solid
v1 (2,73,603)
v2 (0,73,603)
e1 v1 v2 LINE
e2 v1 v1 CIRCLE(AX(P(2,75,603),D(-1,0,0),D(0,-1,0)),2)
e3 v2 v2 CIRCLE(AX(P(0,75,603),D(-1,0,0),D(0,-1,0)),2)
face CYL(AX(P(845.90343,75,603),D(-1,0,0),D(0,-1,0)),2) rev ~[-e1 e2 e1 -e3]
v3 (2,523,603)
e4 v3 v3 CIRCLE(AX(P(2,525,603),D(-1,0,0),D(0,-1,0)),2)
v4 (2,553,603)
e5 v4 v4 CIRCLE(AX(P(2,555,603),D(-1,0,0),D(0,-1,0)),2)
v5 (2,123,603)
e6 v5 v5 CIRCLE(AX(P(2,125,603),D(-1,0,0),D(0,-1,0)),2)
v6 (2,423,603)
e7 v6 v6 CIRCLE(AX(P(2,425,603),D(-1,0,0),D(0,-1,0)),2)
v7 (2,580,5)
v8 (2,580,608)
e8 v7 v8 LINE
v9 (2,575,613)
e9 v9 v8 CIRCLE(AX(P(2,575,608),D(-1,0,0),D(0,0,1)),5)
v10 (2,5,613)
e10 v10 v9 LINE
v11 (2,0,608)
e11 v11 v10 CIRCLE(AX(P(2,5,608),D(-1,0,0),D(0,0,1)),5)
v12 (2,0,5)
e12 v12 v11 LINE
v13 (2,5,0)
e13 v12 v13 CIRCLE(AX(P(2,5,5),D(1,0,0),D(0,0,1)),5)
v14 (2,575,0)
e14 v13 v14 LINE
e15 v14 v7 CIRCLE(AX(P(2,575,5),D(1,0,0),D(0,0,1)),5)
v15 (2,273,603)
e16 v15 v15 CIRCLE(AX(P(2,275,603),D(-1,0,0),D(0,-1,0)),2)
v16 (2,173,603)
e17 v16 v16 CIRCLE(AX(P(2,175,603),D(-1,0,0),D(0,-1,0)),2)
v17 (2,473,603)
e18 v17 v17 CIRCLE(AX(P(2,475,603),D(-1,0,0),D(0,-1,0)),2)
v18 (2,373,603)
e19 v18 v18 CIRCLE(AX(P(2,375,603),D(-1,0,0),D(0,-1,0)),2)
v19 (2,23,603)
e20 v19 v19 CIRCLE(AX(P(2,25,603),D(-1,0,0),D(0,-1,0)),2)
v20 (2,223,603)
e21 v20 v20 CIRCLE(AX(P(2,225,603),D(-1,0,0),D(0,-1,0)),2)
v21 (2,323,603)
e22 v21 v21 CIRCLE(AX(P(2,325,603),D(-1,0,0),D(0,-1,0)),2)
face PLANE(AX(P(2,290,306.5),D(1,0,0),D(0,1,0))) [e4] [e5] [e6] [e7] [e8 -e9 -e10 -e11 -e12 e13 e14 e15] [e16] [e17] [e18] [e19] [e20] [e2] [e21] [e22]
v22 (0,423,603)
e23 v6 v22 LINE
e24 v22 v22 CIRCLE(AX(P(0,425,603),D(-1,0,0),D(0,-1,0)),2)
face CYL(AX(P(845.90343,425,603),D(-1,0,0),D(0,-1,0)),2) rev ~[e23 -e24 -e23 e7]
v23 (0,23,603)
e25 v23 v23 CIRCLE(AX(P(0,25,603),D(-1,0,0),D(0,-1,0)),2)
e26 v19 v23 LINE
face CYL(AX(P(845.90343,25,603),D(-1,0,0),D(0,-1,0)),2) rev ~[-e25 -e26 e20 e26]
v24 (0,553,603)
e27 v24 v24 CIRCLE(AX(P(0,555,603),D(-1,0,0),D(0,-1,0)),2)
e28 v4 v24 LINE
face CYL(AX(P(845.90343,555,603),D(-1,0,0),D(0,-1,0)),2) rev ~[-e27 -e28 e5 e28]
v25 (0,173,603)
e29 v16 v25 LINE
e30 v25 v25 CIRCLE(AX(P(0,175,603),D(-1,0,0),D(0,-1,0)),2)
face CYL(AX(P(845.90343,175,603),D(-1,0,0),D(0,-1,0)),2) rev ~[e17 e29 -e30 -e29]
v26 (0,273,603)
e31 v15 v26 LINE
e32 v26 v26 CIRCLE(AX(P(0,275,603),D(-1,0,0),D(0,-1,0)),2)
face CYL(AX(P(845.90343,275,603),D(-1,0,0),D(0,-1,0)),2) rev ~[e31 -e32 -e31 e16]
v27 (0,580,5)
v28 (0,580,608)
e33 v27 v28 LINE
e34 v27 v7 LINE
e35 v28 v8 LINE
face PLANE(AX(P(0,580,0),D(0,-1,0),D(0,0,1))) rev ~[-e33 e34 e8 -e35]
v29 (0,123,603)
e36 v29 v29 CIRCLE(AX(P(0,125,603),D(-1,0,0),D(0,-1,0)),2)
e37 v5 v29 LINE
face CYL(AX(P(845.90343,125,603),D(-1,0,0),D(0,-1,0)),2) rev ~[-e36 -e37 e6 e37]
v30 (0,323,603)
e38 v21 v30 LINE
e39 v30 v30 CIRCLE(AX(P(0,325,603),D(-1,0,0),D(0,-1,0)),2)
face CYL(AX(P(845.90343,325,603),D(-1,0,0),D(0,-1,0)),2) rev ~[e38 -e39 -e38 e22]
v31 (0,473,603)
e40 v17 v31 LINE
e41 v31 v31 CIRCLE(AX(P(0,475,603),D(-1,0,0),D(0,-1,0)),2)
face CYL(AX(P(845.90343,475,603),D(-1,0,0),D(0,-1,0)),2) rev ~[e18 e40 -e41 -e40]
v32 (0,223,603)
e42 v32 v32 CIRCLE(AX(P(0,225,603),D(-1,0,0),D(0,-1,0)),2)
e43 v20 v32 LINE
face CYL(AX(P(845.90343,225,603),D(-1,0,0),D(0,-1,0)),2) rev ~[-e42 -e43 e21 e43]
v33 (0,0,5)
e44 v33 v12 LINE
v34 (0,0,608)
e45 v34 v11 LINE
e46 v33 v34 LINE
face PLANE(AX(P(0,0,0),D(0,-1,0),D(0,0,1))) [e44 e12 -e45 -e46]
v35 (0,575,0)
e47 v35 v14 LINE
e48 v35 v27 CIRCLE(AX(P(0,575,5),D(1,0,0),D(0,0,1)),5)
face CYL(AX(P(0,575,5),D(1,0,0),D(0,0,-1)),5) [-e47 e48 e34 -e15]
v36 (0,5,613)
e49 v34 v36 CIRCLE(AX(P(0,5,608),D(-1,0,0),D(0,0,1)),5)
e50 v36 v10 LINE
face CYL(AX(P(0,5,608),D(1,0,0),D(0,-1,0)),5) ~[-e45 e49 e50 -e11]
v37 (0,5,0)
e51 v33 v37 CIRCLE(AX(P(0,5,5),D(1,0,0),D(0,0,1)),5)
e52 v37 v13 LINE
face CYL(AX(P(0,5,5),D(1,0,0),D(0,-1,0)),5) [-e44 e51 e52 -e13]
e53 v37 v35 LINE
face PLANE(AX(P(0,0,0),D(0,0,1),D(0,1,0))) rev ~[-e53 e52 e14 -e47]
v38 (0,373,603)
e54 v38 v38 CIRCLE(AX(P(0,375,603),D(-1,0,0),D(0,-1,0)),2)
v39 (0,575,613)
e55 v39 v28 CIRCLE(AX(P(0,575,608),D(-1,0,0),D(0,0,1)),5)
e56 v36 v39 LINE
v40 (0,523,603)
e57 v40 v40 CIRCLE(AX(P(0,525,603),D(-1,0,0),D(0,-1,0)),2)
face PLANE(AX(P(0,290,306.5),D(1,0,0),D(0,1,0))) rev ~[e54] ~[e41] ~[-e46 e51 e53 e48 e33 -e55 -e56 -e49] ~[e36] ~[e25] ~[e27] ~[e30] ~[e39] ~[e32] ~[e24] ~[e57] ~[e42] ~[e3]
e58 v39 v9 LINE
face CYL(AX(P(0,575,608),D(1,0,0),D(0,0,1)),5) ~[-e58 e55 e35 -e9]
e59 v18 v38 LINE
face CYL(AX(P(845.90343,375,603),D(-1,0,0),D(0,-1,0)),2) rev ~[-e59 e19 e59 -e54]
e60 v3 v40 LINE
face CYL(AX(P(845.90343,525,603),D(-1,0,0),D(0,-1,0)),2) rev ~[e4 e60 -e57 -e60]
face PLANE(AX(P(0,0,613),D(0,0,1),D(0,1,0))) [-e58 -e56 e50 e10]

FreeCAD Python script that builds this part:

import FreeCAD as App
import Part
import Sketcher


def edges_at(feature, points):
    """Names of the edges that pass closest to the given points."""
    edges = feature.Shape.Edges
    near = lambda p: min(range(len(edges)), key=lambda i: edges[i].distToShape(Part.Vertex(*p))[0])
    return sorted({f"Edge{near(p) + 1}" for p in points})


def add_polygon(sketch, points):
    """Adds a closed chain of lines whose ends are joined by coincident constraints."""
    first, n = sketch.GeometryCount, len(points)
    for a, b in zip(points, points[1:] + points[:1]):
        sketch.addGeometry(Part.LineSegment(App.Vector(*a, 0), App.Vector(*b, 0)), False)
    for i in range(n):
        sketch.addConstraint(Sketcher.Constraint("Coincident", first + i, 2, first + (i + 1) % n, 1))

doc = App.newDocument("Part")
body = doc.addObject("PartDesign::Body", "Body")

# Sketch on YZ plane
sketch1 = body.newObject("Sketcher::SketchObject", "Sketch")
sketch1.AttachmentSupport = (doc.getObject("YZ_Plane"), [""])
sketch1.MapMode = "FlatFace"
add_polygon(sketch1, [(0, 613), (0, 0), (580, 0), (580, 613)])  # lines 0-3
sketch1.addConstraint([
    Sketcher.Constraint("Vertical", 0),
    Sketcher.Constraint("Horizontal", 1),
    Sketcher.Constraint("Vertical", 2),
    Sketcher.Constraint("Horizontal", 3),
    Sketcher.Constraint("Coincident", 0, 2, -1, 1),
    Sketcher.Constraint("DistanceX", 1, 1, 1, 2, 580.0),
    Sketcher.Constraint("DistanceY", 0, 2, 0, 1, 613.0),
])
pad1 = body.newObject("PartDesign::Pad", "Pad")
pad1.Profile = sketch1
pad1.Length = 2

# Sketch on YZ plane
sketch2 = body.newObject("Sketcher::SketchObject", "Sketch001")
sketch2.AttachmentSupport = (doc.getObject("YZ_Plane"), [""])
sketch2.MapMode = "FlatFace"
sketch2.AttachmentOffset = App.Placement(App.Vector(0, 0, 2), App.Rotation())
sketch2.addGeometry([
    Part.Circle(App.Vector(25, 603, 0), App.Vector(0, 0, 1), 2),  # 0
    Part.Circle(App.Vector(75, 603, 0), App.Vector(0, 0, 1), 2),  # 1
    Part.Circle(App.Vector(125, 603, 0), App.Vector(0, 0, 1), 2),  # 2
    Part.Circle(App.Vector(175, 603, 0), App.Vector(0, 0, 1), 2),  # 3
    Part.Circle(App.Vector(225, 603, 0), App.Vector(0, 0, 1), 2),  # 4
    Part.Circle(App.Vector(325, 603, 0), App.Vector(0, 0, 1), 2),  # 5
    Part.Circle(App.Vector(275, 603, 0), App.Vector(0, 0, 1), 2),  # 6
    Part.Circle(App.Vector(375, 603, 0), App.Vector(0, 0, 1), 2),  # 7
    Part.Circle(App.Vector(425, 603, 0), App.Vector(0, 0, 1), 2),  # 8
    Part.Circle(App.Vector(475, 603, 0), App.Vector(0, 0, 1), 2),  # 9
    Part.Circle(App.Vector(525, 603, 0), App.Vector(0, 0, 1), 2),  # 10
    Part.Circle(App.Vector(555, 603, 0), App.Vector(0, 0, 1), 2),  # 11
], False)
sketch2.addConstraint([
    Sketcher.Constraint("Equal", 0, 1),
    Sketcher.Constraint("Equal", 1, 2),
    Sketcher.Constraint("Equal", 2, 3),
    Sketcher.Constraint("Equal", 3, 4),
    Sketcher.Constraint("Equal", 4, 5),
    Sketcher.Constraint("Equal", 5, 6),
    Sketcher.Constraint("Equal", 6, 7),
    Sketcher.Constraint("Equal", 7, 8),
    Sketcher.Constraint("Equal", 8, 9),
    Sketcher.Constraint("Equal", 9, 10),
    Sketcher.Constraint("Equal", 10, 11),
    Sketcher.Constraint("Horizontal", 0, 3, 1, 3),
    Sketcher.Constraint("Horizontal", 1, 3, 2, 3),
    Sketcher.Constraint("Horizontal", 2, 3, 3, 3),
    Sketcher.Constraint("Horizontal", 3, 3, 4, 3),
    Sketcher.Constraint("Horizontal", 4, 3, 5, 3),
    Sketcher.Constraint("Horizontal", 5, 3, 6, 3),
    Sketcher.Constraint("Horizontal", 6, 3, 7, 3),
    Sketcher.Constraint("Horizontal", 7, 3, 8, 3),
    Sketcher.Constraint("Horizontal", 8, 3, 9, 3),
    Sketcher.Constraint("Horizontal", 9, 3, 10, 3),
    Sketcher.Constraint("Horizontal", 10, 3, 11, 3),
    Sketcher.Constraint("Diameter", 0, 4.0),
    Sketcher.Constraint("DistanceX", -1, 1, 0, 3, 25.0),
    Sketcher.Constraint("DistanceY", -1, 1, 0, 3, 603.0),
    Sketcher.Constraint("DistanceX", -1, 1, 1, 3, 75.0),
    Sketcher.Constraint("DistanceX", -1, 1, 2, 3, 125.0),
    Sketcher.Constraint("DistanceX", -1, 1, 3, 3, 175.0),
    Sketcher.Constraint("DistanceX", -1, 1, 4, 3, 225.0),
    Sketcher.Constraint("DistanceX", -1, 1, 5, 3, 325.0),
    Sketcher.Constraint("DistanceX", -1, 1, 6, 3, 275.0),
    Sketcher.Constraint("DistanceX", -1, 1, 7, 3, 375.0),
    Sketcher.Constraint("DistanceX", -1, 1, 8, 3, 425.0),
    Sketcher.Constraint("DistanceX", -1, 1, 9, 3, 475.0),
    Sketcher.Constraint("DistanceX", -1, 1, 10, 3, 525.0),
    Sketcher.Constraint("DistanceX", -1, 1, 11, 3, 555.0),
])
doc.recompute()
hole = body.newObject("PartDesign::Hole", "Hole")
hole.Profile = sketch2
hole.ThreadType = "None"
hole.Diameter = 4
hole.DepthType = "ThroughAll"
doc.recompute()

fillet = body.newObject("PartDesign::Fillet", "Fillet")
fillet.Base = (hole, edges_at(hole, [
    (1, 0, 613),
    (1, 580, 613),
    (1, 0, 0),
    (1, 580, 0),
]))
fillet.Radius = 5

doc.recompute()
